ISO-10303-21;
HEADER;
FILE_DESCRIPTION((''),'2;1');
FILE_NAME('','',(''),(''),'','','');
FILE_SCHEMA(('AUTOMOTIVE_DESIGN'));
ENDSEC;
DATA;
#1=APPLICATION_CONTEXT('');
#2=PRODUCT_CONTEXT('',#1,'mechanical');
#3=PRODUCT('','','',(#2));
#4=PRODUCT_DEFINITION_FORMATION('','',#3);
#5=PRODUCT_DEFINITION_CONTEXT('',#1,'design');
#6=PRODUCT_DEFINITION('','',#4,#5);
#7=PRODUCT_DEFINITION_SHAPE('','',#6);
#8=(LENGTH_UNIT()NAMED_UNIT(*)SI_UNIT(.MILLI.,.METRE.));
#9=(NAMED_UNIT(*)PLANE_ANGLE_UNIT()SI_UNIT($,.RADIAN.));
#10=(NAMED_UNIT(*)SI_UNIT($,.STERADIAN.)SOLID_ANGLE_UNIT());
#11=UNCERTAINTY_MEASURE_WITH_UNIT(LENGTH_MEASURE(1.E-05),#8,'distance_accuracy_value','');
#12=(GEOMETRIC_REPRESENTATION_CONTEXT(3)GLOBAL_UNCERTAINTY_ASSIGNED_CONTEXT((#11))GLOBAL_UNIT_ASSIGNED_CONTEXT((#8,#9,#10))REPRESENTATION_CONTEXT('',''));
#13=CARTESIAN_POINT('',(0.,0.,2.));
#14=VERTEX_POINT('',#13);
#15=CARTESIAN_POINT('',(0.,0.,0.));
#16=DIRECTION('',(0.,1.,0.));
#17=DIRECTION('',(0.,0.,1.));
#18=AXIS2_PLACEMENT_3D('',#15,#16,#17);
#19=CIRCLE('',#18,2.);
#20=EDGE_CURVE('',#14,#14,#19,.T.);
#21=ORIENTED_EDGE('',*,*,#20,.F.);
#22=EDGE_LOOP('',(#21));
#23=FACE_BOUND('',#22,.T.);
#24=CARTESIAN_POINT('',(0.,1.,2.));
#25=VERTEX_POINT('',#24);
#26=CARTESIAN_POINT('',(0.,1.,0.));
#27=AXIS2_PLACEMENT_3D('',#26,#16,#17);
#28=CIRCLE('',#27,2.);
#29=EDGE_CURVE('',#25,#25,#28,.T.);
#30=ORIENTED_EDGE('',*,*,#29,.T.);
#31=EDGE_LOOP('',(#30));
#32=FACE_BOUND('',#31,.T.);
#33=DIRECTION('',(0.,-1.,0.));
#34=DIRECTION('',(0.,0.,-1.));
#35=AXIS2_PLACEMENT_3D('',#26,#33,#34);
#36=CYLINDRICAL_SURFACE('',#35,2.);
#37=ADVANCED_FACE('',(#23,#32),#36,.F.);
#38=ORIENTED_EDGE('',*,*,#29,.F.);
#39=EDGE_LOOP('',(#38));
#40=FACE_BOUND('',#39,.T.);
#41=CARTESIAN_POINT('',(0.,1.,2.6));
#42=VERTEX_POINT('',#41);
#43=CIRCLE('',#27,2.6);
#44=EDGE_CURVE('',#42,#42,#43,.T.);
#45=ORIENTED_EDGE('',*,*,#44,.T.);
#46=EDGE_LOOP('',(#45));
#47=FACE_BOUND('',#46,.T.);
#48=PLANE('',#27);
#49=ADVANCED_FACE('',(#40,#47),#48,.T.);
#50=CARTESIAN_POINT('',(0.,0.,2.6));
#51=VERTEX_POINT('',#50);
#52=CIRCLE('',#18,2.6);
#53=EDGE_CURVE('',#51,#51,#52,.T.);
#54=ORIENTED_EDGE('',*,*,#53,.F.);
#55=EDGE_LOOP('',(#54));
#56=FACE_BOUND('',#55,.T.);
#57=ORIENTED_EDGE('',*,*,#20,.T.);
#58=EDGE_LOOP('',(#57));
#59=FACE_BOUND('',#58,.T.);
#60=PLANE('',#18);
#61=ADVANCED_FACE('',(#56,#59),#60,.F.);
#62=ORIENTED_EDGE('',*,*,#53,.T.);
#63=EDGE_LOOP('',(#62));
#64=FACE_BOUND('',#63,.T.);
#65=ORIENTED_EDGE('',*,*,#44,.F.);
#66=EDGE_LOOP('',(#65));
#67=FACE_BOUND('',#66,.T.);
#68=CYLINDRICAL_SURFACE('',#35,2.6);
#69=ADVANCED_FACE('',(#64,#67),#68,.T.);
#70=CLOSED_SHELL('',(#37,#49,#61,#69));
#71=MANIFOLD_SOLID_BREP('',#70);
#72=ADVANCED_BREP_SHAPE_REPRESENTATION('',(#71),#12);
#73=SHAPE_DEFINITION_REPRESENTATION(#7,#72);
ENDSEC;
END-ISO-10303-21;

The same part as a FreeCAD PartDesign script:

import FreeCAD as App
import Part
import Sketcher

doc = App.newDocument("Part")
body = doc.addObject("PartDesign::Body", "Body")

# Sketch on XZ plane
sketch1 = body.newObject("Sketcher::SketchObject", "Sketch")
sketch1.AttachmentSupport = (doc.getObject("XZ_Plane"), [""])
sketch1.MapMode = "FlatFace"
sketch1.addGeometry([
    Part.Circle(App.Vector(0, 0, 0), App.Vector(0, 0, 1), 2.6),
    Part.Circle(App.Vector(0, 0, 0), App.Vector(0, 0, 1), 2),
], False)
sketch1.addConstraint([
    Sketcher.Constraint("Coincident", 0, 3, -1, 1),
    Sketcher.Constraint("Coincident", 1, 3, -1, 1),
    Sketcher.Constraint("Diameter", 1, 4.0),
    Sketcher.Constraint("Diameter", 0, 5.2),
])
pad1 = body.newObject("PartDesign::Pad", "Pad")
pad1.Profile = sketch1
pad1.Length = 1
pad1.Reversed = True

doc.recompute()
